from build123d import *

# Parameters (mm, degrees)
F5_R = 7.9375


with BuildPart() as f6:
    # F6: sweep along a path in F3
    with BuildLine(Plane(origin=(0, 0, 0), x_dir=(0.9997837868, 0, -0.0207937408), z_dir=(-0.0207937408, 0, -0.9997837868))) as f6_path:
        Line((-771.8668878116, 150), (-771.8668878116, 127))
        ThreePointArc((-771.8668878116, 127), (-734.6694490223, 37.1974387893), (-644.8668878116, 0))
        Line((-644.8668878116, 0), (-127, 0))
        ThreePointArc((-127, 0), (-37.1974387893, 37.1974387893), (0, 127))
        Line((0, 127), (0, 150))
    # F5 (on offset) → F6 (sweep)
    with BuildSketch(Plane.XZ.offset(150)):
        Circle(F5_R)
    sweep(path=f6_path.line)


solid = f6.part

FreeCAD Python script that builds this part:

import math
import FreeCAD as App
import Part
import Sketcher
Q = App.Units.Quantity

doc = App.newDocument("Part")
params = doc.addObject("Spreadsheet::Sheet", "Params")
for row, (alias, value) in enumerate([
    ("sketch1_diameter", "0.625 in"),
    ("sketch2_radius", "5 in"),
], start=1):
    params.set(f"A{row}", alias)
    params.set(f"B{row}", "=" + value)
    params.setAlias(f"B{row}", alias)

body = doc.addObject("PartDesign::Body", "Body")

# Sketch on XZ plane
sketch1 = doc.addObject("Sketcher::SketchObject", "Sketch")
body.addObject(sketch1)
sketch1.AttachmentSupport = (doc.XZ_Plane, [""])
sketch1.MapMode = "FlatFace"
sketch1.AttachmentOffset = App.Placement(App.Vector(0, 0, 150), App.Rotation())
sketch1.addGeometry(Part.Circle(App.Vector(0, 0, 0), App.Vector(0, 0, 1), 8), False)
sketch1.addConstraint([
    Sketcher.Constraint("Coincident", 0, 3, -1, 1),
    Sketcher.Constraint("Diameter", 0, Q("0.625 in")),
])
sketch1.setExpression("Constraints[1]", "Params.sketch1_diameter")

# Sketch on an angled plane
sketch2 = doc.addObject("Sketcher::SketchObject", "Sketch001")
body.addObject(sketch2)
sketch2.Placement = App.Placement(App.Vector(0, 0, 0), App.Rotation(App.Vector(0.999783787, 0, -0.020793741), App.Vector(0, 1, 0), App.Vector(0.020793741, 0, 0.999783787), "ZXY"))
sketch2.addGeometry([
    Part.LineSegment(App.Vector(-772, -150, 0), App.Vector(-772, -127, 0)),  # 0
    Part.ArcOfCircle(Part.Circle(App.Vector(-645, -127, 0), App.Vector(0, 0, 1), 127), math.radians(90), math.radians(180)),  # 1
    Part.LineSegment(App.Vector(-645, 0, 0), App.Vector(-127, 0, 0)),  # 2
    Part.ArcOfCircle(Part.Circle(App.Vector(-127, -127, 0), App.Vector(0, 0, 1), 127), math.radians(0), math.radians(90)),  # 3
    Part.LineSegment(App.Vector(0, -127, 0), App.Vector(0, -150, 0)),  # 4
], False)
sketch2.addConstraint([
    Sketcher.Constraint("Tangent", 0, 2, 1, 2),
    Sketcher.Constraint("Tangent", 1, 1, 2, 1),
    Sketcher.Constraint("Tangent", 2, 2, 3, 2),
    Sketcher.Constraint("Tangent", 3, 1, 4, 1),
    Sketcher.Constraint("Vertical", 0),
    Sketcher.Constraint("Horizontal", 2),
    Sketcher.Constraint("Vertical", 4),
    Sketcher.Constraint("Equal", 1, 3),
    Sketcher.Constraint("PointOnObject", 1, 1, -1),
    Sketcher.Constraint("PointOnObject", 3, 1, -2),
    Sketcher.Constraint("Horizontal", 0, 1, 4, 2),
    Sketcher.Constraint("Radius", 1, Q("5 in")),
    Sketcher.Constraint("DistanceY", 0, 1, 0, 2, 23.0),
    Sketcher.Constraint("DistanceX", 2, 1, 2, 2, 517.866888),
])
sketch2.setExpression("Constraints[11]", "Params.sketch2_radius")
doc.recompute()

additivepipe = doc.addObject("PartDesign::AdditivePipe", "AdditivePipe")
body.addObject(additivepipe)
additivepipe.Profile = sketch1
additivepipe.Spine = (sketch2, ["Edge1", "Edge2", "Edge3", "Edge4", "Edge5"])

doc.recompute()
